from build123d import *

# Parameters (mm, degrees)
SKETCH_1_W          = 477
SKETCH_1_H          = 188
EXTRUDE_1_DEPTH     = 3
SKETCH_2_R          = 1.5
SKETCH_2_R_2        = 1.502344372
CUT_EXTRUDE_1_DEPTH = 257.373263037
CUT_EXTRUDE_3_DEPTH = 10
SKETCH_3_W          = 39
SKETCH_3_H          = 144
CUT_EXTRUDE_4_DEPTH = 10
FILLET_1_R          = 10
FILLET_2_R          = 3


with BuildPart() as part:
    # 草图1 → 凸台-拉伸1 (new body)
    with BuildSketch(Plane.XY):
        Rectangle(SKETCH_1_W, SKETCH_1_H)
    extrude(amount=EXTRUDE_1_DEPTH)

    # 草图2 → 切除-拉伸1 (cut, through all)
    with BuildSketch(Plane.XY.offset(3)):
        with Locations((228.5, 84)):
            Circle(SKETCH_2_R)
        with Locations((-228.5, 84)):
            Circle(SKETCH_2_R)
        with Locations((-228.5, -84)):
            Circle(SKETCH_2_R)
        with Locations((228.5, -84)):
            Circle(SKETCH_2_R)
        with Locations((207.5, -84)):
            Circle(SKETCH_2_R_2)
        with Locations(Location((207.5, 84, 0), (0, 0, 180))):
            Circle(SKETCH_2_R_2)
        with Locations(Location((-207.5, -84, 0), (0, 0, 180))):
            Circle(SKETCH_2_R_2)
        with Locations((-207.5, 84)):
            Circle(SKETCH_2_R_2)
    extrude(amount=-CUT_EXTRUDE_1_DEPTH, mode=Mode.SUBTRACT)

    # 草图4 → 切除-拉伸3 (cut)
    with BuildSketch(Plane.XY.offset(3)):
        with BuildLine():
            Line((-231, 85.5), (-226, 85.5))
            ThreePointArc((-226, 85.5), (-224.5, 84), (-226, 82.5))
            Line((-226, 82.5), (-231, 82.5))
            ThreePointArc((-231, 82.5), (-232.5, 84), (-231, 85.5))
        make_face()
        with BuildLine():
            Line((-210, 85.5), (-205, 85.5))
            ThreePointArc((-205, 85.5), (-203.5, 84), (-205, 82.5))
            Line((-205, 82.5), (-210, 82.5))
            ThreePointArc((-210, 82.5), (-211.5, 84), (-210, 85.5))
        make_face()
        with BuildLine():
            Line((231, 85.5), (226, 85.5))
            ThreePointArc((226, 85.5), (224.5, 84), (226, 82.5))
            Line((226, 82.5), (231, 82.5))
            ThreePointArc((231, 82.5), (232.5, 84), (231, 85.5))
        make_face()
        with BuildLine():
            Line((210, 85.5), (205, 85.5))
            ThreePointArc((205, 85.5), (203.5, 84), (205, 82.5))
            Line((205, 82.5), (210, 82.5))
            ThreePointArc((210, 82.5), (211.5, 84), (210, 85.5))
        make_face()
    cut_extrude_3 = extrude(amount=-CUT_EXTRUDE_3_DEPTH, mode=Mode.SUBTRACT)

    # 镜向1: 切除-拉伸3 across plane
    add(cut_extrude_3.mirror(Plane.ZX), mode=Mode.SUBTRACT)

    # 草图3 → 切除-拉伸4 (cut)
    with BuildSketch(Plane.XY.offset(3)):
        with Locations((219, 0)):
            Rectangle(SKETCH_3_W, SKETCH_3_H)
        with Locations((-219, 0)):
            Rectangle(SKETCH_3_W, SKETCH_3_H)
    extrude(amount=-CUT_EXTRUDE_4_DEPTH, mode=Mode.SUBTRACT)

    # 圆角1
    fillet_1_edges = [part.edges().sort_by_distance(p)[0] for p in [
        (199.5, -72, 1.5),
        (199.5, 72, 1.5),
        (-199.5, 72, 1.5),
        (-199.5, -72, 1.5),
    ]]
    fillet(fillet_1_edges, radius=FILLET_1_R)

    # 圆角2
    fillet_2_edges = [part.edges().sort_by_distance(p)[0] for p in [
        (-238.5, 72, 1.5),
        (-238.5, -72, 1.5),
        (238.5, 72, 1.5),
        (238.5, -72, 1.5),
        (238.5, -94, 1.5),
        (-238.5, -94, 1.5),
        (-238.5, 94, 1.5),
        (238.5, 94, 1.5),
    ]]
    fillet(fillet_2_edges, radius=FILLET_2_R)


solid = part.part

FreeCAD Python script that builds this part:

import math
import FreeCAD as App
import Part
import Sketcher

V = App.Vector
Q = App.Units.Quantity


def edges_at(feature, points):
    """Names of the edges that pass closest to the given points."""
    edges = feature.Shape.Edges
    near = lambda p: min(range(len(edges)), key=lambda i: edges[i].distToShape(Part.Vertex(*p))[0])
    return sorted({f"Edge{near(p) + 1}" for p in points})


def add_polygon(sketch, points):
    """Adds a closed chain of lines whose ends are joined by coincident constraints."""
    first, n = sketch.GeometryCount, len(points)
    for a, b in zip(points, points[1:] + points[:1]):
        sketch.addGeometry(Part.LineSegment(App.Vector(*a, 0), App.Vector(*b, 0)), False)
    for i in range(n):
        sketch.addConstraint(Sketcher.Constraint("Coincident", first + i, 2, first + (i + 1) % n, 1))

doc = App.newDocument("Part")
body = doc.addObject("PartDesign::Body", "Body")

sketch1 = doc.addObject("Sketcher::SketchObject", "Sketch")
body.addObject(sketch1)
sketch1.AttachmentSupport = (doc.XY_Plane, [""])
sketch1.MapMode = "FlatFace"
add_polygon(sketch1, [(-238, 94), (-238, -94), (238, -94), (238, 94)])
sketch1.addConstraint(Sketcher.Constraint("Vertical", 0))
sketch1.addConstraint(Sketcher.Constraint("Horizontal", 1))
sketch1.addConstraint(Sketcher.Constraint("Vertical", 2))
sketch1.addConstraint(Sketcher.Constraint("Horizontal", 3))
sketch1.addConstraint(Sketcher.Constraint("Symmetric", 0, 2, 2, 2, -1, 1))
sketch1.addConstraint(Sketcher.Constraint("DistanceX", 1, 1, 1, 2, Q("477 mm")))
sketch1.addConstraint(Sketcher.Constraint("DistanceY", 0, 2, 0, 1, Q("188 mm")))
pad1 = doc.addObject("PartDesign::Pad", "Pad")
body.addObject(pad1)
pad1.Profile = sketch1
pad1.Length = 3

sketch2 = doc.addObject("Sketcher::SketchObject", "Sketch001")
body.addObject(sketch2)
sketch2.AttachmentSupport = (doc.XY_Plane, [""])
sketch2.MapMode = "FlatFace"
sketch2.AttachmentOffset = App.Placement(V(0, 0, 3), App.Rotation())
sketch2.addGeometry(Part.Circle(V(228.5, 84, 0), V(0, 0, 1), 1.5), False)
sketch2.addGeometry(Part.Circle(V(-228.5, 84, 0), V(0, 0, 1), 1.5), False)
sketch2.addGeometry(Part.Circle(V(-228.5, -84, 0), V(0, 0, 1), 1.5), False)
sketch2.addGeometry(Part.Circle(V(228.5, -84, 0), V(0, 0, 1), 1.5), False)
sketch2.addGeometry(Part.Circle(V(207.5, -84, 0), V(0, 0, 1), 1.5), False)
sketch2.addGeometry(Part.Circle(V(207.5, 84, 0), V(0, 0, 1), 1.5), False)
sketch2.addGeometry(Part.Circle(V(-207.5, -84, 0), V(0, 0, 1), 1.5), False)
sketch2.addGeometry(Part.Circle(V(-207.5, 84, 0), V(0, 0, 1), 1.5), False)
sketch2.addConstraint(Sketcher.Constraint("Equal", 0, 1))
sketch2.addConstraint(Sketcher.Constraint("Equal", 1, 2))
sketch2.addConstraint(Sketcher.Constraint("Equal", 2, 3))
sketch2.addConstraint(Sketcher.Constraint("Equal", 4, 5))
sketch2.addConstraint(Sketcher.Constraint("Equal", 5, 6))
sketch2.addConstraint(Sketcher.Constraint("Equal", 6, 7))
sketch2.addConstraint(Sketcher.Constraint("Symmetric", 0, 3, 2, 3, -1, 1))
sketch2.addConstraint(Sketcher.Constraint("Symmetric", 1, 3, 3, 3, -1, 1))
sketch2.addConstraint(Sketcher.Constraint("Symmetric", 5, 3, 6, 3, -1, 1))
sketch2.addConstraint(Sketcher.Constraint("Symmetric", 4, 3, 7, 3, -1, 1))
sketch2.addConstraint(Sketcher.Constraint("Symmetric", 0, 3, 1, 3, -2))
sketch2.addConstraint(Sketcher.Constraint("Symmetric", 4, 3, 6, 3, -2))
sketch2.addConstraint(Sketcher.Constraint("Horizontal", 3, 3, 4, 3))
sketch2.addConstraint(Sketcher.Constraint("Diameter", 0, Q("3 mm")))
sketch2.addConstraint(Sketcher.Constraint("DistanceY", -1, 1, 0, 3, Q("84 mm")))
sketch2.addConstraint(Sketcher.Constraint("DistanceX", 1, 3, 0, 3, Q("457 mm")))
sketch2.addConstraint(Sketcher.Constraint("DistanceX", 4, 3, 3, 3, Q("21 mm")))
sketch2.addConstraint(Sketcher.Constraint("Diameter", 4, Q("3.004689 mm")))
pocket1 = doc.addObject("PartDesign::Pocket", "Pocket")
body.addObject(pocket1)
pocket1.Profile = sketch2
pocket1.Type = "ThroughAll"

sketch3 = doc.addObject("Sketcher::SketchObject", "Sketch002")
body.addObject(sketch3)
sketch3.AttachmentSupport = (doc.XY_Plane, [""])
sketch3.MapMode = "FlatFace"
sketch3.AttachmentOffset = App.Placement(V(0, 0, 3), App.Rotation())
sketch3.addGeometry(Part.LineSegment(V(-226, 85.5, 0), V(-231, 85.5, 0)), False)
sketch3.addGeometry(Part.ArcOfCircle(Part.Circle(V(-231, 84, 0), V(0, 0, 1), 1.5), math.radians(90), math.radians(270)), False)
sketch3.addGeometry(Part.LineSegment(V(-231, 82.5, 0), V(-226, 82.5, 0)), False)
sketch3.addGeometry(Part.ArcOfCircle(Part.Circle(V(-226, 84, 0), V(0, 0, 1), 1.5), math.radians(-90), math.radians(90)), False)
sketch3.addGeometry(Part.LineSegment(V(-205, 85.5, 0), V(-210, 85.5, 0)), False)
sketch3.addGeometry(Part.ArcOfCircle(Part.Circle(V(-210, 84, 0), V(0, 0, 1), 1.5), math.radians(90), math.radians(270)), False)
sketch3.addGeometry(Part.LineSegment(V(-210, 82.5, 0), V(-205, 82.5, 0)), False)
sketch3.addGeometry(Part.ArcOfCircle(Part.Circle(V(-205, 84, 0), V(0, 0, 1), 1.5), math.radians(-90), math.radians(90)), False)
sketch3.addGeometry(Part.LineSegment(V(231, 85.5, 0), V(226, 85.5, 0)), False)
sketch3.addGeometry(Part.ArcOfCircle(Part.Circle(V(226, 84, 0), V(0, 0, 1), 1.5), math.radians(90), math.radians(270)), False)
sketch3.addGeometry(Part.LineSegment(V(226, 82.5, 0), V(231, 82.5, 0)), False)
sketch3.addGeometry(Part.ArcOfCircle(Part.Circle(V(231, 84, 0), V(0, 0, 1), 1.5), math.radians(-90), math.radians(90)), False)
sketch3.addGeometry(Part.LineSegment(V(210, 85.5, 0), V(205, 85.5, 0)), False)
sketch3.addGeometry(Part.ArcOfCircle(Part.Circle(V(205, 84, 0), V(0, 0, 1), 1.5), math.radians(90), math.radians(270)), False)
sketch3.addGeometry(Part.LineSegment(V(205, 82.5, 0), V(210, 82.5, 0)), False)
sketch3.addGeometry(Part.ArcOfCircle(Part.Circle(V(210, 84, 0), V(0, 0, 1), 1.5), math.radians(-90), math.radians(90)), False)
sketch3.addConstraint(Sketcher.Constraint("Tangent", 0, 2, 1, 1))
sketch3.addConstraint(Sketcher.Constraint("Tangent", 1, 2, 2, 1))
sketch3.addConstraint(Sketcher.Constraint("Tangent", 2, 2, 3, 1))
sketch3.addConstraint(Sketcher.Constraint("Tangent", 3, 2, 0, 1))
sketch3.addConstraint(Sketcher.Constraint("Tangent", 4, 2, 5, 1))
sketch3.addConstraint(Sketcher.Constraint("Tangent", 5, 2, 6, 1))
sketch3.addConstraint(Sketcher.Constraint("Tangent", 6, 2, 7, 1))
sketch3.addConstraint(Sketcher.Constraint("Tangent", 7, 2, 4, 1))
sketch3.addConstraint(Sketcher.Constraint("Tangent", 8, 2, 9, 1))
sketch3.addConstraint(Sketcher.Constraint("Tangent", 9, 2, 10, 1))
sketch3.addConstraint(Sketcher.Constraint("Tangent", 10, 2, 11, 1))
sketch3.addConstraint(Sketcher.Constraint("Tangent", 11, 2, 8, 1))
sketch3.addConstraint(Sketcher.Constraint("Tangent", 12, 2, 13, 1))
sketch3.addConstraint(Sketcher.Constraint("Tangent", 13, 2, 14, 1))
sketch3.addConstraint(Sketcher.Constraint("Tangent", 14, 2, 15, 1))
sketch3.addConstraint(Sketcher.Constraint("Tangent", 15, 2, 12, 1))
sketch3.addConstraint(Sketcher.Constraint("Horizontal", 0))
sketch3.addConstraint(Sketcher.Constraint("Horizontal", 2))
sketch3.addConstraint(Sketcher.Constraint("Horizontal", 4))
sketch3.addConstraint(Sketcher.Constraint("Horizontal", 6))
sketch3.addConstraint(Sketcher.Constraint("Horizontal", 8))
sketch3.addConstraint(Sketcher.Constraint("Horizontal", 10))
sketch3.addConstraint(Sketcher.Constraint("Horizontal", 12))
sketch3.addConstraint(Sketcher.Constraint("Horizontal", 14))
sketch3.addConstraint(Sketcher.Constraint("Equal", 3, 5))
sketch3.addConstraint(Sketcher.Constraint("Equal", 7, 9))
sketch3.addConstraint(Sketcher.Constraint("Equal", 11, 13))
sketch3.addConstraint(Sketcher.Constraint("Symmetric", 3, 3, 9, 3, -2))
sketch3.addConstraint(Sketcher.Constraint("Symmetric", 7, 3, 13, 3, -2))
sketch3.addConstraint(Sketcher.Constraint("Horizontal", 3, 3, 5, 3))
sketch3.addConstraint(Sketcher.Constraint("Equal", 2, 4))
sketch3.addConstraint(Sketcher.Constraint("Equal", 6, 8))
sketch3.addConstraint(Sketcher.Constraint("Equal", 10, 12))
sketch3.addConstraint(Sketcher.Constraint("Radius", 1, Q("1.5 mm")))
sketch3.addConstraint(Sketcher.Constraint("DistanceX", 0, 2, 0, 1, Q("5 mm")))
sketch3.addConstraint(Sketcher.Constraint("DistanceX", 1, 3, -1, 1, Q("231 mm")))
sketch3.addConstraint(Sketcher.Constraint("DistanceY", -1, 1, 1, 3, Q("84 mm")))
sketch3.addConstraint(Sketcher.Constraint("DistanceX", 5, 3, -1, 1, Q("210 mm")))
pocket2 = doc.addObject("PartDesign::Pocket", "Pocket001")
body.addObject(pocket2)
pocket2.Profile = sketch3
pocket2.Length = 10
doc.recompute()

mirrored = doc.addObject("PartDesign::Mirrored", "Mirrored")
body.addObject(mirrored)
mirrored.Originals = [pocket2]
mirrored.MirrorPlane = (doc.XZ_Plane, [""])
body.Tip = mirrored

sketch4 = doc.addObject("Sketcher::SketchObject", "Sketch003")
body.addObject(sketch4)
sketch4.AttachmentSupport = (doc.XY_Plane, [""])
sketch4.MapMode = "FlatFace"
sketch4.AttachmentOffset = App.Placement(V(0, 0, 3), App.Rotation())
add_polygon(sketch4, [(200, 72), (200, -72), (238, -72), (238, 72)])
add_polygon(sketch4, [(-238, 72), (-238, -72), (-200, -72), (-200, 72)])
sketch4.addConstraint(Sketcher.Constraint("Vertical", 0))
sketch4.addConstraint(Sketcher.Constraint("Horizontal", 1))
sketch4.addConstraint(Sketcher.Constraint("Vertical", 2))
sketch4.addConstraint(Sketcher.Constraint("Horizontal", 3))
sketch4.addConstraint(Sketcher.Constraint("Vertical", 4))
sketch4.addConstraint(Sketcher.Constraint("Horizontal", 5))
sketch4.addConstraint(Sketcher.Constraint("Vertical", 6))
sketch4.addConstraint(Sketcher.Constraint("Horizontal", 7))
sketch4.addConstraint(Sketcher.Constraint("Symmetric", 2, 2, 4, 2, -1, 1))
sketch4.addConstraint(Sketcher.Constraint("Symmetric", 0, 2, 6, 2, -1, 1))
sketch4.addConstraint(Sketcher.Constraint("Horizontal", 1, 2, 4, 2))
sketch4.addConstraint(Sketcher.Constraint("DistanceX", 1, 1, 1, 2, Q("39 mm")))
sketch4.addConstraint(Sketcher.Constraint("DistanceY", 0, 2, 0, 1, Q("144 mm")))
sketch4.addConstraint(Sketcher.Constraint("DistanceX", 4, 2, 0, 2, Q("438 mm")))
pocket3 = doc.addObject("PartDesign::Pocket", "Pocket002")
body.addObject(pocket3)
pocket3.Profile = sketch4
pocket3.Length = 10
doc.recompute()

fillet = doc.addObject("PartDesign::Fillet", "Fillet")
body.addObject(fillet)
fillet.Base = (pocket3, edges_at(pocket3, [
    (199.5, -72, 1.5),
    (199.5, 72, 1.5),
    (-199.5, 72, 1.5),
    (-199.5, -72, 1.5),
]))
fillet.Radius = 10
doc.recompute()

fillet2 = doc.addObject("PartDesign::Fillet", "Fillet001")
body.addObject(fillet2)
fillet2.Base = (fillet, edges_at(fillet, [
    (-238.5, 72, 1.5),
    (-238.5, -72, 1.5),
    (238.5, 72, 1.5),
    (238.5, -72, 1.5),
    (238.5, -94, 1.5),
    (-238.5, -94, 1.5),
    (-238.5, 94, 1.5),
    (238.5, 94, 1.5),
]))
fillet2.Radius = 3

doc.recompute()
